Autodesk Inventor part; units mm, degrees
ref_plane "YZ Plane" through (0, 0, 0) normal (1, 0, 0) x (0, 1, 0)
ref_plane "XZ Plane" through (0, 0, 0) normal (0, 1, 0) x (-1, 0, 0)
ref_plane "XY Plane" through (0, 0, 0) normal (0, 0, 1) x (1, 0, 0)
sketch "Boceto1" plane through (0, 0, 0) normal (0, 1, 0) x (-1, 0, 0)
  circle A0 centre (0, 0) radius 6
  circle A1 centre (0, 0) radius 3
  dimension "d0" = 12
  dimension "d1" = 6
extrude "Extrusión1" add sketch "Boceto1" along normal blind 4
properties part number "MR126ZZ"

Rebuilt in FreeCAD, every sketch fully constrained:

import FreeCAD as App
import Part
import Sketcher
Q = App.Units.Quantity

doc = App.newDocument("Part")
body = doc.addObject("PartDesign::Body", "Body")

# Sketch on XZ plane
sketch1 = doc.addObject("Sketcher::SketchObject", "Sketch")
body.addObject(sketch1)
sketch1.AttachmentSupport = (doc.XZ_Plane, [""])
sketch1.MapMode = "FlatFace"
sketch1.addGeometry([
    Part.Circle(App.Vector(0, 0, 0), App.Vector(0, 0, 1), 6),
    Part.Circle(App.Vector(0, 0, 0), App.Vector(0, 0, 1), 3),
], False)
sketch1.addConstraint([
    Sketcher.Constraint("Coincident", 0, 3, -1, 1),
    Sketcher.Constraint("Coincident", 1, 3, -1, 1),
    Sketcher.Constraint("Diameter", 0, Q("12 mm")),
    Sketcher.Constraint("Diameter", 1, Q("6 mm")),
])
pad1 = doc.addObject("PartDesign::Pad", "Pad")
body.addObject(pad1)
pad1.Profile = sketch1
pad1.Length = 4
pad1.Reversed = True

doc.recompute()
